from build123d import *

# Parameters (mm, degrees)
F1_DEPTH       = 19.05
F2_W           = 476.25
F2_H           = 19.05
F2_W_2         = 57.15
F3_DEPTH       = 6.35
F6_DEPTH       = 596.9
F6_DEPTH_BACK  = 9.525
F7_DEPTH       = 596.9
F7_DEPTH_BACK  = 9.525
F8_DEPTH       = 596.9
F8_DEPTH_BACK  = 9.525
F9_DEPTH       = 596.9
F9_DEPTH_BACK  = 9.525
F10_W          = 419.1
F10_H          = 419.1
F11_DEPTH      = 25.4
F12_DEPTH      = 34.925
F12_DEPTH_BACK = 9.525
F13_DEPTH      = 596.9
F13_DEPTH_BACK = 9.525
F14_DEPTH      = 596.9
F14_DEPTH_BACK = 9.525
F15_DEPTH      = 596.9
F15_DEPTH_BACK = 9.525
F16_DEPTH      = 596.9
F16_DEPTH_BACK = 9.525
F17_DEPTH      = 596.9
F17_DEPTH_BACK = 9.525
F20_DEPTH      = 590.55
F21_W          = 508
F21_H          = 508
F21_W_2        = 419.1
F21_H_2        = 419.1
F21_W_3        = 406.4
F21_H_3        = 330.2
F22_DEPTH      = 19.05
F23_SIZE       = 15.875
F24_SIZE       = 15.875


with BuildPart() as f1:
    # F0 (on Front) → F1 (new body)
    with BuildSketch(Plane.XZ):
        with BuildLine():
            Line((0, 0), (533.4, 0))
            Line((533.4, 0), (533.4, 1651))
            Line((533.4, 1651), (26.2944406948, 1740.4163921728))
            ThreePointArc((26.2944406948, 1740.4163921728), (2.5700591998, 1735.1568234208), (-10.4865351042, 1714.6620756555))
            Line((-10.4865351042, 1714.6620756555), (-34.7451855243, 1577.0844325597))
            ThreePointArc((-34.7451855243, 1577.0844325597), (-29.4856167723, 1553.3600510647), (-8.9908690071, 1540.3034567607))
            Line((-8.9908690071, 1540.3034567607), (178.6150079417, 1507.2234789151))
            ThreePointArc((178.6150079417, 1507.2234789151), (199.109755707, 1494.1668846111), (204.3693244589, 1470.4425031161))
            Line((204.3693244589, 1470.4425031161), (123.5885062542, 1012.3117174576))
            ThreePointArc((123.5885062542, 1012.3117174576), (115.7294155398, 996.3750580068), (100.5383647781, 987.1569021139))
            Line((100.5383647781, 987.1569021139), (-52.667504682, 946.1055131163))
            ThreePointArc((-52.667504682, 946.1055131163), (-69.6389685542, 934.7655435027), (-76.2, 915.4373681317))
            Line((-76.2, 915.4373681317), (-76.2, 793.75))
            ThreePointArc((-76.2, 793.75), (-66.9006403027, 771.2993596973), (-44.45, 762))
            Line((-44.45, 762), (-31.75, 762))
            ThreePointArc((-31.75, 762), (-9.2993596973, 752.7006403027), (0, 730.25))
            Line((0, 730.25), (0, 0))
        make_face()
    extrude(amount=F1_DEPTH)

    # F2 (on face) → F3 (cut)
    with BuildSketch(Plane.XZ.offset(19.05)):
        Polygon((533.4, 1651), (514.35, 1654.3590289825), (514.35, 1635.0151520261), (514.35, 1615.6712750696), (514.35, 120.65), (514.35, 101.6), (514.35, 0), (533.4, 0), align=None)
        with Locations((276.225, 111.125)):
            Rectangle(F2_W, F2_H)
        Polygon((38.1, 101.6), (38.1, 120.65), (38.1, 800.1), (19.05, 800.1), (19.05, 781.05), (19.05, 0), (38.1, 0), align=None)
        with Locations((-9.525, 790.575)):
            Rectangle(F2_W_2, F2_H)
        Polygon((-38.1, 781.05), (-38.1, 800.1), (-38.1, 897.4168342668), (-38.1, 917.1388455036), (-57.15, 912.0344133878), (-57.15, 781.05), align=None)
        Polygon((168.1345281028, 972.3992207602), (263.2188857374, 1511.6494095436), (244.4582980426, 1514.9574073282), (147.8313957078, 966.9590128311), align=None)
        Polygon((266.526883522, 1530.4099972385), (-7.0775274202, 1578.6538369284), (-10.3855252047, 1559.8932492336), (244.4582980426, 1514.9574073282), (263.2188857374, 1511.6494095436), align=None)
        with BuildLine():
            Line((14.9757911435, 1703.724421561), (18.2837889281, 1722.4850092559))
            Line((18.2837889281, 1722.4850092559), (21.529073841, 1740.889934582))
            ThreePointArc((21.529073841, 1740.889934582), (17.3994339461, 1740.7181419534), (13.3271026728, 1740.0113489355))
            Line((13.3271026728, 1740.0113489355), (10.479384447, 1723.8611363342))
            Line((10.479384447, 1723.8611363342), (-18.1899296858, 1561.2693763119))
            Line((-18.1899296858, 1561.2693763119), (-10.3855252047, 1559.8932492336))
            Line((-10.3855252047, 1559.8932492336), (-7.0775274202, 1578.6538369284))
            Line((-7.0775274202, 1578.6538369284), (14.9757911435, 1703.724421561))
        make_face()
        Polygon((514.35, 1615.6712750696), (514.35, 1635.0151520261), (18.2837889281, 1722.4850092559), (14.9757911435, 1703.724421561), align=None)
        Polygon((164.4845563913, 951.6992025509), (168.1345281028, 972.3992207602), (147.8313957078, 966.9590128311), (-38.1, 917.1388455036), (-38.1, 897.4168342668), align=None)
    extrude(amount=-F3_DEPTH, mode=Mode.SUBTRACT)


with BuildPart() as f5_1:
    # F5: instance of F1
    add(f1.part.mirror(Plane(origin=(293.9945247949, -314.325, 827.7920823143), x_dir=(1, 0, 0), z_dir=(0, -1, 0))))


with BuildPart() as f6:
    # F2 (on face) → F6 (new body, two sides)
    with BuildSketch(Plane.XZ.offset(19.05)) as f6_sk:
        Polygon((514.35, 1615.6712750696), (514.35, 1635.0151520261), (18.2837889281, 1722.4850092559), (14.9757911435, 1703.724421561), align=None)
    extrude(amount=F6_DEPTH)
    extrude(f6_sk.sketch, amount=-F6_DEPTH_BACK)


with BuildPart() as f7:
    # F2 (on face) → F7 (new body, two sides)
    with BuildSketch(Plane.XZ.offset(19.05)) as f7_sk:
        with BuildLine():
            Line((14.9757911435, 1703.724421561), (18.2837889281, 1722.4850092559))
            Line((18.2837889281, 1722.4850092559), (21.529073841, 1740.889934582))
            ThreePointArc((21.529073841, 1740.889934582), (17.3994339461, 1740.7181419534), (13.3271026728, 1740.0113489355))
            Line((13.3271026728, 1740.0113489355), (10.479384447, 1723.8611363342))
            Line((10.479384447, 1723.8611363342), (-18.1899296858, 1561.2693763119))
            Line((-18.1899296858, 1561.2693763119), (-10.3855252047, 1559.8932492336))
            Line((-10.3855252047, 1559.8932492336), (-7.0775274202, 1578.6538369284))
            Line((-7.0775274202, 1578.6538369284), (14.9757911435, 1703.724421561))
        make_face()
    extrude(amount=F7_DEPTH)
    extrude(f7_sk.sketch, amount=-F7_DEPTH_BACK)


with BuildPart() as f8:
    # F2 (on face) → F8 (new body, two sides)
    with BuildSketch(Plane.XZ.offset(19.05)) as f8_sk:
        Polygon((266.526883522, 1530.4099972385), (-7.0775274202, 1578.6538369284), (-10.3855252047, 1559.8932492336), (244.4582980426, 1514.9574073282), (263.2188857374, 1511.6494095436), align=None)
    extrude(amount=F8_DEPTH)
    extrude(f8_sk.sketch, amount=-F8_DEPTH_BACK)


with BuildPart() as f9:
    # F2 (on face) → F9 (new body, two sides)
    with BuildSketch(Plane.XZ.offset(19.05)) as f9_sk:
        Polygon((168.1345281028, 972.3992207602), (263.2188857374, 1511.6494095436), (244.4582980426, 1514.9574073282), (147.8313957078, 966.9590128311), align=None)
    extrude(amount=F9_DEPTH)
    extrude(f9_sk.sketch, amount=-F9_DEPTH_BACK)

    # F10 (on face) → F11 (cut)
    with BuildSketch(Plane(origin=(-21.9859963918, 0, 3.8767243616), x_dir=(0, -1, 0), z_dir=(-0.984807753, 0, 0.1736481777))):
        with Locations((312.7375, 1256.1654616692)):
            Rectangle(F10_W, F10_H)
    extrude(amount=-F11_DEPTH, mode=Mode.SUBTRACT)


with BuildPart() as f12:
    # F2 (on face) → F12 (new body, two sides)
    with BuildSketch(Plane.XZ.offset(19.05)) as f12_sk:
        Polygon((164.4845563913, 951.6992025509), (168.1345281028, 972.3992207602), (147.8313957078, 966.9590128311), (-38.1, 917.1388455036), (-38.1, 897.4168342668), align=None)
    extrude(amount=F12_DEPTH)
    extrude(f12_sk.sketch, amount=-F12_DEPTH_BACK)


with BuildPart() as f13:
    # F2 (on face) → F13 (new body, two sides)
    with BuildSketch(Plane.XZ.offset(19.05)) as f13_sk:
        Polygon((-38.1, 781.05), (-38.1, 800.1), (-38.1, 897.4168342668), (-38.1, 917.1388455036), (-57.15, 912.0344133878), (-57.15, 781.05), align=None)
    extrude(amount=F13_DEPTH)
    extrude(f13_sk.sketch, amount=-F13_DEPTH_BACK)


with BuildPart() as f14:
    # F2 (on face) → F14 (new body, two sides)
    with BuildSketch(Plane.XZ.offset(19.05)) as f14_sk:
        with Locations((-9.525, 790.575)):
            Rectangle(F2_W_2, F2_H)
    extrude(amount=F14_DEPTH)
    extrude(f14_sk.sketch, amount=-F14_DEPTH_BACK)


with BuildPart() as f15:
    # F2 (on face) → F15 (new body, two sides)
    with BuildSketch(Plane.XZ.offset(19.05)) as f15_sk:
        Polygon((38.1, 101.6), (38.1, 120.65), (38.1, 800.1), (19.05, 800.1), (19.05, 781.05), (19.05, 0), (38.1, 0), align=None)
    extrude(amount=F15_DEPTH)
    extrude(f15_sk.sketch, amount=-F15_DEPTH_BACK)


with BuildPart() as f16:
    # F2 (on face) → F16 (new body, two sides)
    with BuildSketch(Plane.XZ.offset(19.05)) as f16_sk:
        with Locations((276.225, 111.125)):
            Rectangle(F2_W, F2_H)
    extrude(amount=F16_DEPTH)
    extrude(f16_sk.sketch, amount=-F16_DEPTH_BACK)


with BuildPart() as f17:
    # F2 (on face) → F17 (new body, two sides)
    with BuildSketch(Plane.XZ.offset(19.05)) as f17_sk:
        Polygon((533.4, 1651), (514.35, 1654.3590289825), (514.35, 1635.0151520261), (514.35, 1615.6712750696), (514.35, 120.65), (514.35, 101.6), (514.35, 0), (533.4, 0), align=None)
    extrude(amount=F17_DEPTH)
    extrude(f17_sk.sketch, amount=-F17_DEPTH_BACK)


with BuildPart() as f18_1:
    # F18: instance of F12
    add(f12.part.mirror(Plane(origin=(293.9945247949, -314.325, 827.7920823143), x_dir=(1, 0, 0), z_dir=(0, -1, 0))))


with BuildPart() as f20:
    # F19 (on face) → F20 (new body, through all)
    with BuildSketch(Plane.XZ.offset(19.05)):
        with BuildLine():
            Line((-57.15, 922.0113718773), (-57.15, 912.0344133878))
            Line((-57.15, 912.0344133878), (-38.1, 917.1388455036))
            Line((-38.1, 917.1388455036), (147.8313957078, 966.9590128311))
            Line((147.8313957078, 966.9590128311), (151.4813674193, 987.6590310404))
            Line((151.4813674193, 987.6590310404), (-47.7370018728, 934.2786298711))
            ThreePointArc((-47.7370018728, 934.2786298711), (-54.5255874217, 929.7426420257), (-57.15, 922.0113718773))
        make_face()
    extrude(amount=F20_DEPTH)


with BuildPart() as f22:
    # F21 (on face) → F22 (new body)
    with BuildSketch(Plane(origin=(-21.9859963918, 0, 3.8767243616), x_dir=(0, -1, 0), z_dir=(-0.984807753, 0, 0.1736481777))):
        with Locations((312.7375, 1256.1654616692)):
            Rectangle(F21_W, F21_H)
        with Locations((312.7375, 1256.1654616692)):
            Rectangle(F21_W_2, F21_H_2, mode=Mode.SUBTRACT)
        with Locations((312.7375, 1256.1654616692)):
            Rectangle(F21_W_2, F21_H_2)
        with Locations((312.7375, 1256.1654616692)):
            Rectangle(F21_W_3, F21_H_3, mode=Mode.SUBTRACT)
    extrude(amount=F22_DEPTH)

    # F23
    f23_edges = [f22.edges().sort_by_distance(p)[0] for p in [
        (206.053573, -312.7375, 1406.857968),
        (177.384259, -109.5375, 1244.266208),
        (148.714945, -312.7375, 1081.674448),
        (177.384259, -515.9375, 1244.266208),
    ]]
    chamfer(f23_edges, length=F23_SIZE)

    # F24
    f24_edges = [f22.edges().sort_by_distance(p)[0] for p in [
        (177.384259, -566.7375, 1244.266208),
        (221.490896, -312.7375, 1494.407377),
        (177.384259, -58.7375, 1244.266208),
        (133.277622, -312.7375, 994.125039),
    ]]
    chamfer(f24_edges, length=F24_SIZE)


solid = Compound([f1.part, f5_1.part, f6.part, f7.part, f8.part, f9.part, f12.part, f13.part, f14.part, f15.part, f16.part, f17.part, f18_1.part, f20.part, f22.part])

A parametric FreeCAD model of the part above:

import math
import FreeCAD as App
import Part
import Sketcher

V = App.Vector
Q = App.Units.Quantity


def edges_at(feature, points):
    """Names of the edges that pass closest to the given points."""
    edges = feature.Shape.Edges
    near = lambda p: min(range(len(edges)), key=lambda i: edges[i].distToShape(Part.Vertex(*p))[0])
    return sorted({f"Edge{near(p) + 1}" for p in points})


def add_polygon(sketch, points):
    """Adds a closed chain of lines whose ends are joined by coincident constraints."""
    first, n = sketch.GeometryCount, len(points)
    for a, b in zip(points, points[1:] + points[:1]):
        sketch.addGeometry(Part.LineSegment(App.Vector(*a, 0), App.Vector(*b, 0)), False)
    for i in range(n):
        sketch.addConstraint(Sketcher.Constraint("Coincident", first + i, 2, first + (i + 1) % n, 1))

doc = App.newDocument("Part")
params = doc.addObject("Spreadsheet::Sheet", "Params")
for row, (alias, value) in enumerate([
    ("sketch1_width", "21 in"),
    ("sketch1_height", "65 in"),
    ("sketch1_radius", "1.25 in"),
    ("sketch1_width2", "0.5 in"),
    ("sketch1_length", "5.5 in"),
    ("pad1_length", "0.75 in"),
    ("sketch2_width", "3 in"),
    ("sketch2_height", "65 in"),
    ("sketch2_height2", "4 in"),
    ("sketch2_radius", "1.25 in"),
    ("sketch2_length", "5 in"),
    ("pocket1_length", "0.25 in"),
    ("sketch3_length", "0.75 in"),
    ("pad2_length", "23.5 in"),
    ("pad2_length2", "0.375 in"),
    ("sketch4_radius", "1.25 in"),
    ("sketch4_length", "5 in"),
    ("sketch4_length2", "0.75 in"),
    ("sketch4_length3", "0.312 in"),
    ("pad3_length", "23.5 in"),
    ("pad3_length2", "0.375 in"),
    ("sketch5_length", "0.75 in"),
    ("sketch5_length2", "10.938 in"),
    ("pad4_length", "23.5 in"),
    ("pad4_length2", "0.375 in"),
    ("sketch6_length", "0.75 in"),
    ("pad5_length", "23.5 in"),
    ("pad5_length2", "0.375 in"),
    ("sketch7_width", "16.5 in"),
    ("pocket2_length", "1 in"),
    ("pad6_length", "1.375 in"),
    ("pad6_length2", "0.375 in"),
    ("sketch9_width", "0.75 in"),
    ("pad7_length", "23.5 in"),
    ("pad7_length2", "0.375 in"),
    ("sketch10_width", "2.25 in"),
    ("sketch10_height", "0.75 in"),
    ("pad8_length", "23.5 in"),
    ("pad8_length2", "0.375 in"),
    ("sketch11_height", "31.5 in"),
    ("sketch11_width", "0.75 in"),
    ("pad9_length", "23.5 in"),
    ("pad9_length2", "0.375 in"),
    ("sketch12_width", "18.75 in"),
    ("sketch12_height", "0.75 in"),
    ("pad10_length", "23.5 in"),
    ("pad10_length2", "0.375 in"),
    ("sketch13_height", "65 in"),
    ("sketch13_width", "0.75 in"),
    ("pad11_length", "23.5 in"),
    ("pad11_length2", "0.375 in"),
    ("sketch14_radius", "0.5 in"),
    ("pad12_length", "23.25 in"),
    ("sketch15_width", "20 in"),
    ("sketch15_width2", "16 in"),
    ("sketch15_height", "13 in"),
    ("pad13_length", "0.75 in"),
    ("chamfer_size", "0.625 in"),
    ("chamfer2_size", "0.625 in"),
], start=1):
    params.set(f"A{row}", alias)
    params.set(f"B{row}", "=" + value)
    params.setAlias(f"B{row}", alias)

body = doc.addObject("PartDesign::Body", "Body")

# Sketch on XZ plane
sketch1 = body.newObject("Sketcher::SketchObject", "Sketch")
sketch1.AttachmentSupport = (doc.getObject("XZ_Plane"), [""])
sketch1.MapMode = "FlatFace"
sketch1.addGeometry([
    Part.LineSegment(V(0, 0, 0), V(533, 0, 0)),  # 0
    Part.LineSegment(V(533, 0, 0), V(533, 1651, 0)),  # 1
    Part.LineSegment(V(533, 1651, 0), V(26, 1740, 0)),  # 2
    Part.ArcOfCircle(Part.Circle(V(21, 1709, 0), V(0, 0, 1), 32), math.radians(80), math.radians(170)),  # 3
    Part.LineSegment(V(-10, 1715, 0), V(-35, 1577, 0)),  # 4
    Part.ArcOfCircle(Part.Circle(V(-3, 1572, 0), V(0, 0, 1), 32), math.radians(170), math.radians(260)),  # 5
    Part.LineSegment(V(-9, 1540, 0), V(179, 1507, 0)),  # 6
    Part.ArcOfCircle(Part.Circle(V(173, 1476, 0), V(0, 0, 1), 32), math.radians(-10), math.radians(80)),  # 7
    Part.LineSegment(V(204, 1470, 0), V(124, 1012, 0)),  # 8
    Part.ArcOfCircle(Part.Circle(V(92, 1018, 0), V(0, 0, 1), 32), math.radians(-75), math.radians(-10)),  # 9
    Part.LineSegment(V(101, 987, 0), V(-53, 946, 0)),  # 10
    Part.ArcOfCircle(Part.Circle(V(-44, 915, 0), V(0, 0, 1), 32), math.radians(105), math.radians(180)),  # 11
    Part.LineSegment(V(-76, 915, 0), V(-76, 794, 0)),  # 12
    Part.ArcOfCircle(Part.Circle(V(-44, 794, 0), V(0, 0, 1), 32), math.radians(180), math.radians(270)),  # 13
    Part.LineSegment(V(-44, 762, 0), V(-32, 762, 0)),  # 14
    Part.ArcOfCircle(Part.Circle(V(-32, 730, 0), V(0, 0, 1), 32), math.radians(0), math.radians(90)),  # 15
    Part.LineSegment(V(0, 730, 0), V(0, 0, 0)),  # 16
], False)
sketch1.addConstraint([
    Sketcher.Constraint("Coincident", 0, 2, 1, 1),
    Sketcher.Constraint("Coincident", 1, 2, 2, 1),
    Sketcher.Constraint("Tangent", 2, 2, 3, 1),
    Sketcher.Constraint("Tangent", 3, 2, 4, 1),
    Sketcher.Constraint("Tangent", 4, 2, 5, 1),
    Sketcher.Constraint("Tangent", 5, 2, 6, 1),
    Sketcher.Constraint("Tangent", 6, 2, 7, 2),
    Sketcher.Constraint("Tangent", 7, 1, 8, 1),
    Sketcher.Constraint("Tangent", 8, 2, 9, 2),
    Sketcher.Constraint("Tangent", 9, 1, 10, 1),
    Sketcher.Constraint("Tangent", 10, 2, 11, 1),
    Sketcher.Constraint("Tangent", 11, 2, 12, 1),
    Sketcher.Constraint("Tangent", 12, 2, 13, 1),
    Sketcher.Constraint("Tangent", 13, 2, 14, 1),
    Sketcher.Constraint("Tangent", 14, 2, 15, 2),
    Sketcher.Constraint("Tangent", 15, 1, 16, 1),
    Sketcher.Constraint("Coincident", 16, 2, 0, 1),
    Sketcher.Constraint("Horizontal", 0),
    Sketcher.Constraint("Vertical", 1),
    Sketcher.Constraint("Vertical", 12),
    Sketcher.Constraint("Horizontal", 14),
    Sketcher.Constraint("Vertical", 16),
    Sketcher.Constraint("Coincident", 16, 2, -1, 1),
    Sketcher.Constraint("Equal", 3, 5),
    Sketcher.Constraint("Equal", 5, 7),
    Sketcher.Constraint("Equal", 7, 9),
    Sketcher.Constraint("Equal", 9, 11),
    Sketcher.Constraint("Equal", 11, 13),
    Sketcher.Constraint("Equal", 13, 15),
    Sketcher.Constraint("Perpendicular", 2, 4),
    Sketcher.Constraint("Perpendicular", 4, 6),
    Sketcher.Constraint("Perpendicular", 6, 8),
    Sketcher.Constraint("DistanceX", 0, 1, 0, 2, Q("21 in")),
    Sketcher.Constraint("DistanceY", 1, 1, 1, 2, Q("65 in")),
    Sketcher.Constraint("Radius", 3, Q("1.25 in")),
    Sketcher.Constraint("DistanceX", 14, 1, 14, 2, Q("0.5 in")),
    Sketcher.Constraint("DistanceY", -1, 1, 13, 2, Q("30 in")),
    Sketcher.Constraint("Angle", 2, Q("170 deg")),
    Sketcher.Constraint("Angle", 10, Q("-165 deg")),
    Sketcher.Constraint("Distance", 4, Q("5.5 in")),
    Sketcher.Constraint("Distance", 6, Q("7.5 in")),
    Sketcher.Constraint("DistanceY", 12, 2, 12, 1, 121.687368),
    Sketcher.Constraint("DistanceX", 5, 3, 9, 3, 95.798399),
])
sketch1.setExpression("Constraints[32]", "Params.sketch1_width")
sketch1.setExpression("Constraints[33]", "Params.sketch1_height")
sketch1.setExpression("Constraints[34]", "Params.sketch1_radius")
sketch1.setExpression("Constraints[35]", "Params.sketch1_width2")
sketch1.setExpression("Constraints[39]", "Params.sketch1_length")
pad1 = body.newObject("PartDesign::Pad", "Pad")
pad1.Profile = sketch1
pad1.setExpression("Length", "Params.pad1_length")

# Sketch on XZ plane
sketch2 = body.newObject("Sketcher::SketchObject", "Sketch001")
sketch2.AttachmentSupport = (doc.getObject("XZ_Plane"), [""])
sketch2.MapMode = "FlatFace"
sketch2.AttachmentOffset = App.Placement(V(0, 0, 0.75 * 25.4), App.Rotation())
sketch2.addGeometry(Part.LineSegment(V(514.35, 0, 0), V(533.4, 0, 0)), False)  # 0
sketch2.addGeometry(Part.LineSegment(V(533.4, 0, 0), V(533.4, 1651, 0)), False)  # 1
sketch2.addGeometry(Part.LineSegment(V(533.4, 1651, 0), V(514.35, 1654.359029, 0)), False)  # 2
sketch2.addGeometry(Part.LineSegment(V(514.35, 1654.359029, 0), V(514.35, 1635.015152, 0)), False)  # 3
sketch2.addGeometry(Part.LineSegment(V(514.35, 1635.015152, 0), V(18.283789, 1722.485009, 0)), False)  # 4
sketch2.addGeometry(Part.LineSegment(V(18.283789, 1722.485009, 0), V(21.529074, 1740.889935, 0)), False)  # 5
sketch2.addGeometry(Part.ArcOfCircle(Part.Circle(V(20.781111, 1709.148746, 0), V(0, 0, 1), 31.75), math.radians(88.650108), math.radians(103.578178)), False)  # 6
sketch2.addGeometry(Part.LineSegment(V(13.327103, 1740.011349, 0), V(-18.18993, 1561.269376, 0)), False)  # 7
sketch2.addGeometry(Part.LineSegment(V(-18.18993, 1561.269376, 0), V(-10.385525, 1559.893249, 0)), False)  # 8
sketch2.addGeometry(Part.LineSegment(V(-10.385525, 1559.893249, 0), V(244.458298, 1514.957407, 0)), False)  # 9
sketch2.addGeometry(Part.LineSegment(V(244.458298, 1514.957407, 0), V(147.831396, 966.959013, 0)), False)  # 10
sketch2.addGeometry(Part.LineSegment(V(147.831396, 966.959013, 0), V(-57.15, 912.034413, 0)), False)  # 11
sketch2.addGeometry(Part.LineSegment(V(-57.15, 912.034413, 0), V(-57.15, 781.05, 0)), False)  # 12
sketch2.addGeometry(Part.LineSegment(V(-57.15, 781.05, 0), V(19.05, 781.05, 0)), False)  # 13
sketch2.addGeometry(Part.LineSegment(V(19.05, 781.05, 0), V(19.05, 0, 0)), False)  # 14
sketch2.addGeometry(Part.LineSegment(V(19.05, 0, 0), V(38.1, 0, 0)), False)  # 15
sketch2.addGeometry(Part.LineSegment(V(38.1, 0, 0), V(38.1, 101.6, 0)), False)  # 16
sketch2.addGeometry(Part.LineSegment(V(38.1, 101.6, 0), V(514.35, 101.6, 0)), False)  # 17
sketch2.addGeometry(Part.LineSegment(V(514.35, 101.6, 0), V(514.35, 0, 0)), False)  # 18
add_polygon(sketch2, [(168.134528, 972.399221), (263.218886, 1511.64941), (266.526884, 1530.409997), (-7.077527, 1578.653837), (14.975791, 1703.724422), (514.35, 1615.671275), (514.35, 120.65), (38.1, 120.65), (38.1, 800.1), (-38.1, 800.1), (-38.1, 897.416834), (164.484556, 951.699203)])  # lines 19-30
sketch2.addConstraint([
    Sketcher.Constraint("Coincident", 0, 2, 1, 1),
    Sketcher.Constraint("Coincident", 1, 2, 2, 1),
    Sketcher.Constraint("Coincident", 2, 2, 3, 1),
    Sketcher.Constraint("Coincident", 3, 2, 4, 1),
    Sketcher.Constraint("Coincident", 4, 2, 5, 1),
    Sketcher.Constraint("Coincident", 5, 2, 6, 1),
    Sketcher.Constraint("Coincident", 6, 2, 7, 1),
    Sketcher.Constraint("Coincident", 7, 2, 8, 1),
    Sketcher.Constraint("Coincident", 8, 2, 9, 1),
    Sketcher.Constraint("Coincident", 9, 2, 10, 1),
    Sketcher.Constraint("Coincident", 10, 2, 11, 1),
    Sketcher.Constraint("Coincident", 11, 2, 12, 1),
    Sketcher.Constraint("Coincident", 12, 2, 13, 1),
    Sketcher.Constraint("Coincident", 13, 2, 14, 1),
    Sketcher.Constraint("Coincident", 14, 2, 15, 1),
    Sketcher.Constraint("Coincident", 15, 2, 16, 1),
    Sketcher.Constraint("Coincident", 16, 2, 17, 1),
    Sketcher.Constraint("Coincident", 17, 2, 18, 1),
    Sketcher.Constraint("Coincident", 18, 2, 0, 1),
    Sketcher.Constraint("Horizontal", 0),
    Sketcher.Constraint("Vertical", 1),
    Sketcher.Constraint("Vertical", 3),
    Sketcher.Constraint("Vertical", 12),
    Sketcher.Constraint("Horizontal", 13),
    Sketcher.Constraint("Vertical", 14),
    Sketcher.Constraint("Horizontal", 15),
    Sketcher.Constraint("Vertical", 16),
    Sketcher.Constraint("Horizontal", 17),
    Sketcher.Constraint("Vertical", 18),
    Sketcher.Constraint("Vertical", 24),
    Sketcher.Constraint("Horizontal", 25),
    Sketcher.Constraint("Vertical", 26),
    Sketcher.Constraint("Horizontal", 27),
    Sketcher.Constraint("Vertical", 28),
    Sketcher.Constraint("PointOnObject", 0, 2, -1),
    Sketcher.Constraint("PointOnObject", 14, 2, -1),
    Sketcher.Constraint("Parallel", 2, 4),
    Sketcher.Constraint("Perpendicular", 4, 5),
    Sketcher.Constraint("Parallel", 5, 7),
    Sketcher.Constraint("Perpendicular", 7, 8),
    Sketcher.Constraint("Parallel", 8, 9),
    Sketcher.Constraint("Perpendicular", 9, 10),
    Sketcher.Constraint("Parallel", 10, 19),
    Sketcher.Constraint("Parallel", 19, 20),
    Sketcher.Constraint("Perpendicular", 20, 21),
    Sketcher.Constraint("Perpendicular", 21, 22),
    Sketcher.Constraint("Perpendicular", 22, 23),
    Sketcher.Constraint("Parallel", 11, 29),
    Sketcher.Constraint("Perpendicular", 23, 30),
    Sketcher.Constraint("Vertical", 3, 2, 17, 2),
    Sketcher.Constraint("Vertical", 18, 2, 23, 2),
    Sketcher.Constraint("Vertical", 16, 2, 25, 2),
    Sketcher.Constraint("Equal", 0, 15),
    Sketcher.Constraint("Equal", 13, 27),
    Sketcher.Constraint("DistanceX", 13, 1, 13, 2, Q("3 in")),
    Sketcher.Constraint("DistanceY", 1, 1, 1, 2, Q("65 in")),
    Sketcher.Constraint("DistanceY", 16, 1, 16, 2, Q("4 in")),
    Sketcher.Constraint("Radius", 6, Q("1.25 in")),
    Sketcher.Constraint("Distance", 22, Q("5 in")),
    Sketcher.Constraint("DistanceX", -1, 1, 0, 2, Q("21 in")),
    Sketcher.Constraint("Angle", 2, Q("170 deg")),
    Sketcher.Constraint("Angle", 11, Q("-165 deg")),
    Sketcher.Constraint("DistanceX", 0, 1, 0, 2, Q("0.75 in")),
    Sketcher.Constraint("DistanceX", 17, 1, 17, 2, Q("18.75 in")),
    Sketcher.Constraint("DistanceY", 14, 2, 14, 1, Q("30.75 in")),
    Sketcher.Constraint("DistanceY", 26, 1, 26, 2, Q("26.75 in")),
    Sketcher.Constraint("DistanceY", -1, 1, 26, 2, Q("31.5 in")),
    Sketcher.Constraint("Distance", 20, Q("0.75 in")),
    Sketcher.Constraint("Distance", 8, Q("0.312 in")),
    Sketcher.Constraint("Distance", 9, Q("10.188 in")),
    Sketcher.Constraint("Distance", 21, Q("10.938 in")),
    Sketcher.Constraint("DistanceX", -1, 1, 9, 2, 244.458298),
    Sketcher.Constraint("DistanceY", 8, 2, 6, 2, 180.1181),
    Sketcher.Constraint("DistanceX", 8, 2, 5, 2, 31.914599),
    Sketcher.Constraint("DistanceY", 11, 2, 10, 2, 54.924599),
    Sketcher.Constraint("Distance", 4, 503.718832),
    Sketcher.Constraint("Distance", 23, 507.077861),
    Sketcher.Constraint("Distance", 30, 21.019349),
    Sketcher.Constraint("DistanceY", 3, 2, 3, 1, 19.343877),
    Sketcher.Constraint("DistanceY", 12, 2, 12, 1, 130.984413),
    Sketcher.Constraint("DistanceY", 24, 2, 24, 1, 1495.021275),
    Sketcher.Constraint("DistanceY", 28, 1, 28, 2, 97.316834),
])
sketch2.setExpression("Constraints[66]", "Params.sketch2_width")
sketch2.setExpression("Constraints[67]", "Params.sketch2_height")
sketch2.setExpression("Constraints[68]", "Params.sketch2_height2")
sketch2.setExpression("Constraints[69]", "Params.sketch2_radius")
sketch2.setExpression("Constraints[70]", "Params.sketch2_length")
pocket1 = body.newObject("PartDesign::Pocket", "Pocket")
pocket1.Profile = sketch2
pocket1.setExpression("Length", "Params.pocket1_length")
body2 = doc.addObject("PartDesign::Body", "Body001")
doc.recompute()

mirroring = doc.addObject("Part::Mirroring", "Mirroring")
mirroring.Source = body
mirroring.Base = V(293.994525, -314.325, 827.792082)
mirroring.Normal = V(0, -1, 0)
body2.BaseFeature = mirroring
doc.recompute()
body3 = doc.addObject("PartDesign::Body", "Body002")

# Sketch on XZ plane
sketch3 = body3.newObject("Sketcher::SketchObject", "Sketch002")
sketch3.AttachmentSupport = (doc.getObject("XZ_Plane002"), [""])
sketch3.MapMode = "FlatFace"
sketch3.AttachmentOffset = App.Placement(V(0, 0, 0.75 * 25.4), App.Rotation())
add_polygon(sketch3, [(514, 1616), (514, 1635), (18, 1722), (15, 1704)])  # lines 0-3
sketch3.addConstraint([
    Sketcher.Constraint("Vertical", 0),
    Sketcher.Constraint("Perpendicular", 1, 2),
    Sketcher.Constraint("Perpendicular", 2, 3),
    Sketcher.Constraint("Angle", 1, Q("170 deg")),
    Sketcher.Constraint("Distance", 2, Q("0.75 in")),
    Sketcher.Constraint("DistanceX", -1, 1, 0, 2, Q("20.25 in")),
    Sketcher.Constraint("Distance", 1, 503.718832),
    Sketcher.Constraint("DistanceY", -1, 1, 1, 2, 1722.485009),
])
sketch3.setExpression("Constraints[8]", "Params.sketch3_length")
pad2 = body3.newObject("PartDesign::Pad", "Pad001")
pad2.Profile = sketch3
pad2.Type = "TwoLengths"
pad2.setExpression("Length", "Params.pad2_length")
pad2.setExpression("Length2", "Params.pad2_length2")
body4 = doc.addObject("PartDesign::Body", "Body003")

# Sketch on XZ plane
sketch4 = body4.newObject("Sketcher::SketchObject", "Sketch003")
sketch4.AttachmentSupport = (doc.getObject("XZ_Plane003"), [""])
sketch4.MapMode = "FlatFace"
sketch4.AttachmentOffset = App.Placement(V(0, 0, 0.75 * 25.4), App.Rotation())
sketch4.addGeometry([
    Part.LineSegment(V(15, 1704, 0), V(18, 1722, 0)),  # 0
    Part.LineSegment(V(18, 1722, 0), V(22, 1741, 0)),  # 1
    Part.ArcOfCircle(Part.Circle(V(21, 1709, 0), V(0, 0, 1), 32), math.radians(88.65), math.radians(103.58)),  # 2
    Part.LineSegment(V(13, 1740, 0), V(-18, 1561, 0)),  # 3
    Part.LineSegment(V(-18, 1561, 0), V(-10, 1560, 0)),  # 4
    Part.LineSegment(V(-10, 1560, 0), V(-7, 1579, 0)),  # 5
    Part.LineSegment(V(-7, 1579, 0), V(15, 1704, 0)),  # 6
], False)
sketch4.addConstraint([
    Sketcher.Constraint("Coincident", 0, 2, 1, 1),
    Sketcher.Constraint("Coincident", 1, 2, 2, 1),
    Sketcher.Constraint("Coincident", 2, 2, 3, 1),
    Sketcher.Constraint("Coincident", 3, 2, 4, 1),
    Sketcher.Constraint("Coincident", 4, 2, 5, 1),
    Sketcher.Constraint("Coincident", 5, 2, 6, 1),
    Sketcher.Constraint("Coincident", 6, 2, 0, 1),
    Sketcher.Constraint("Parallel", 0, 1),
    Sketcher.Constraint("Parallel", 1, 3),
    Sketcher.Constraint("Perpendicular", 3, 4),
    Sketcher.Constraint("Perpendicular", 4, 5),
    Sketcher.Constraint("Parallel", 5, 6),
    Sketcher.Constraint("Equal", 0, 5),
    Sketcher.Constraint("Radius", 2, Q("1.25 in")),
    Sketcher.Constraint("Distance", 6, Q("5 in")),
    Sketcher.Constraint("Angle", 0, Q("80 deg")),
    Sketcher.Constraint("Distance", 0, Q("0.75 in")),
    Sketcher.Constraint("Distance", 4, Q("0.312 in")),
    Sketcher.Constraint("DistanceY", 4, 2, 2, 2, 180.1181),
    Sketcher.Constraint("DistanceX", 4, 2, 1, 2, 31.914599),
    Sketcher.Constraint("DistanceX", -1, 1, 2, 3, 20.781111),
    Sketcher.Constraint("DistanceY", -1, 1, 0, 2, 1722.485009),
])
sketch4.setExpression("Constraints[13]", "Params.sketch4_radius")
sketch4.setExpression("Constraints[14]", "Params.sketch4_length")
sketch4.setExpression("Constraints[16]", "Params.sketch4_length2")
sketch4.setExpression("Constraints[17]", "Params.sketch4_length3")
pad3 = body4.newObject("PartDesign::Pad", "Pad002")
pad3.Profile = sketch4
pad3.Type = "TwoLengths"
pad3.setExpression("Length", "Params.pad3_length")
pad3.setExpression("Length2", "Params.pad3_length2")
body5 = doc.addObject("PartDesign::Body", "Body004")

# Sketch on XZ plane
sketch5 = body5.newObject("Sketcher::SketchObject", "Sketch004")
sketch5.AttachmentSupport = (doc.getObject("XZ_Plane004"), [""])
sketch5.MapMode = "FlatFace"
sketch5.AttachmentOffset = App.Placement(V(0, 0, 0.75 * 25.4), App.Rotation())
add_polygon(sketch5, [(267, 1530), (-7, 1579), (-10, 1560), (244, 1515), (263, 1512)])  # lines 0-4
sketch5.addConstraint([
    Sketcher.Constraint("Perpendicular", 0, 1),
    Sketcher.Constraint("Perpendicular", 1, 2),
    Sketcher.Constraint("Parallel", 2, 3),
    Sketcher.Constraint("Perpendicular", 3, 4),
    Sketcher.Constraint("Equal", 1, 3),
    Sketcher.Constraint("Angle", 0, Q("170 deg")),
    Sketcher.Constraint("Distance", 1, Q("0.75 in")),
    Sketcher.Constraint("Distance", 0, Q("10.938 in")),
    Sketcher.Constraint("DistanceX", -1, 1, 2, 2, 244.458298),
    Sketcher.Constraint("DistanceY", -1, 1, 1, 2, 1559.893249),
])
sketch5.setExpression("Constraints[11]", "Params.sketch5_length")
sketch5.setExpression("Constraints[12]", "Params.sketch5_length2")
pad4 = body5.newObject("PartDesign::Pad", "Pad003")
pad4.Profile = sketch5
pad4.Type = "TwoLengths"
pad4.setExpression("Length", "Params.pad4_length")
pad4.setExpression("Length2", "Params.pad4_length2")
body6 = doc.addObject("PartDesign::Body", "Body005")

# Sketch on XZ plane
sketch6 = body6.newObject("Sketcher::SketchObject", "Sketch005")
sketch6.AttachmentSupport = (doc.getObject("XZ_Plane005"), [""])
sketch6.MapMode = "FlatFace"
sketch6.AttachmentOffset = App.Placement(V(0, 0, 0.75 * 25.4), App.Rotation())
add_polygon(sketch6, [(168, 972), (263, 1512), (244, 1515), (148, 967)])  # lines 0-3
sketch6.addConstraint([
    Sketcher.Constraint("Perpendicular", 0, 1),
    Sketcher.Constraint("Perpendicular", 1, 2),
    Sketcher.Constraint("Angle", 0, Q("80 deg")),
    Sketcher.Constraint("Angle", 3, Q("15 deg")),
    Sketcher.Constraint("Distance", 1, Q("0.75 in")),
    Sketcher.Constraint("DistanceX", -1, 1, 1, 2, 244.458298),
    Sketcher.Constraint("DistanceY", -1, 1, 0, 2, 1511.64941),
    Sketcher.Constraint("DistanceX", -1, 1, 3, 2, 168.134528),
])
sketch6.setExpression("Constraints[8]", "Params.sketch6_length")
pad5 = body6.newObject("PartDesign::Pad", "Pad004")
pad5.Profile = sketch6
pad5.Type = "TwoLengths"
pad5.setExpression("Length", "Params.pad5_length")
pad5.setExpression("Length2", "Params.pad5_length2")

# Sketch on an angled plane
sketch7 = body6.newObject("Sketcher::SketchObject", "Sketch006")
sketch7.Placement = App.Placement(V(-21.985996, 0, 3.876724), App.Rotation(V(0, -1, 0), V(0.173648178, 0, 0.984807753), V(-0.984807753, 0, 0.173648178), "ZXY"))
add_polygon(sketch7, [(103, 1466), (103, 1047), (522, 1047), (522, 1466)])  # lines 0-3
sketch7.addConstraint([
    Sketcher.Constraint("Vertical", 0),
    Sketcher.Constraint("Horizontal", 1),
    Sketcher.Constraint("Vertical", 2),
    Sketcher.Constraint("Horizontal", 3),
    Sketcher.Constraint("Equal", 3, 0),
    Sketcher.Constraint("DistanceX", 1, 1, 1, 2, Q("16.5 in")),
    Sketcher.Constraint("DistanceX", -1, 1, 0, 2, Q("4.0625 in")),
    Sketcher.Constraint("DistanceY", -1, 1, 0, 2, 1046.615462),
])
sketch7.setExpression("Constraints[9]", "Params.sketch7_width")
pocket2 = body6.newObject("PartDesign::Pocket", "Pocket001")
pocket2.Profile = sketch7
pocket2.setExpression("Length", "Params.pocket2_length")
body7 = doc.addObject("PartDesign::Body", "Body006")

# Sketch on XZ plane
sketch8 = body7.newObject("Sketcher::SketchObject", "Sketch007")
sketch8.AttachmentSupport = (doc.getObject("XZ_Plane006"), [""])
sketch8.MapMode = "FlatFace"
sketch8.AttachmentOffset = App.Placement(V(0, 0, 0.75 * 25.4), App.Rotation())
add_polygon(sketch8, [(164, 952), (168, 972), (148, 967), (-38, 917), (-38, 897)])  # lines 0-4
sketch8.addConstraint([
    Sketcher.Constraint("Vertical", 3),
    Sketcher.Constraint("Parallel", 1, 2),
    Sketcher.Constraint("Parallel", 2, 4),
    Sketcher.Constraint("Equal", 0, 1),
    Sketcher.Constraint("Angle", 0, Q("80 deg")),
    Sketcher.Constraint("Angle", 1, Q("-165 deg")),
    Sketcher.Constraint("DistanceX", 2, 2, -1, 1, Q("1.5 in")),
    Sketcher.Constraint("DistanceY", 3, 2, 3, 1, 19.722011),
    Sketcher.Constraint("DistanceX", -1, 1, 0, 2, 168.134528),
    Sketcher.Constraint("DistanceY", -1, 1, 0, 2, 972.399221),
])
pad6 = body7.newObject("PartDesign::Pad", "Pad005")
pad6.Profile = sketch8
pad6.Type = "TwoLengths"
pad6.setExpression("Length", "Params.pad6_length")
pad6.setExpression("Length2", "Params.pad6_length2")
body8 = doc.addObject("PartDesign::Body", "Body007")

# Sketch on XZ plane
sketch9 = body8.newObject("Sketcher::SketchObject", "Sketch008")
sketch9.AttachmentSupport = (doc.getObject("XZ_Plane007"), [""])
sketch9.MapMode = "FlatFace"
sketch9.AttachmentOffset = App.Placement(V(0, 0, 0.75 * 25.4), App.Rotation())
add_polygon(sketch9, [(-38, 781), (-38, 917), (-57, 912), (-57, 781)])  # lines 0-3
sketch9.addConstraint([
    Sketcher.Constraint("Vertical", 0),
    Sketcher.Constraint("Vertical", 2),
    Sketcher.Constraint("Horizontal", 3),
    Sketcher.Constraint("Angle", 1, Q("-165 deg")),
    Sketcher.Constraint("DistanceX", 3, 1, 3, 2, Q("0.75 in")),
    Sketcher.Constraint("DistanceX", 0, 2, -1, 1, Q("1.5 in")),
    Sketcher.Constraint("DistanceY", -1, 1, 2, 2, Q("30.75 in")),
    Sketcher.Constraint("DistanceY", 0, 1, 0, 2, 136.088846),
])
sketch9.setExpression("Constraints[8]", "Params.sketch9_width")
pad7 = body8.newObject("PartDesign::Pad", "Pad006")
pad7.Profile = sketch9
pad7.Type = "TwoLengths"
pad7.setExpression("Length", "Params.pad7_length")
pad7.setExpression("Length2", "Params.pad7_length2")
body9 = doc.addObject("PartDesign::Body", "Body008")

# Sketch on XZ plane
sketch10 = body9.newObject("Sketcher::SketchObject", "Sketch009")
sketch10.AttachmentSupport = (doc.getObject("XZ_Plane008"), [""])
sketch10.MapMode = "FlatFace"
sketch10.AttachmentOffset = App.Placement(V(0, 0, 0.75 * 25.4), App.Rotation())
add_polygon(sketch10, [(-38, 800), (-38, 781), (19, 781), (19, 800)])  # lines 0-3
sketch10.addConstraint([
    Sketcher.Constraint("Vertical", 0),
    Sketcher.Constraint("Horizontal", 1),
    Sketcher.Constraint("Vertical", 2),
    Sketcher.Constraint("Horizontal", 3),
    Sketcher.Constraint("DistanceX", 1, 1, 1, 2, Q("2.25 in")),
    Sketcher.Constraint("DistanceY", 0, 2, 0, 1, Q("0.75 in")),
    Sketcher.Constraint("DistanceX", 0, 2, -1, 1, Q("1.5 in")),
    Sketcher.Constraint("DistanceY", -1, 1, 2, 2, Q("31.5 in")),
])
sketch10.setExpression("Constraints[8]", "Params.sketch10_width")
sketch10.setExpression("Constraints[9]", "Params.sketch10_height")
pad8 = body9.newObject("PartDesign::Pad", "Pad007")
pad8.Profile = sketch10
pad8.Type = "TwoLengths"
pad8.setExpression("Length", "Params.pad8_length")
pad8.setExpression("Length2", "Params.pad8_length2")
body10 = doc.addObject("PartDesign::Body", "Body009")

# Sketch on XZ plane
sketch11 = body10.newObject("Sketcher::SketchObject", "Sketch010")
sketch11.AttachmentSupport = (doc.getObject("XZ_Plane009"), [""])
sketch11.MapMode = "FlatFace"
sketch11.AttachmentOffset = App.Placement(V(0, 0, 0.75 * 25.4), App.Rotation())
add_polygon(sketch11, [(38, 800), (19, 800), (19, 0), (38, 0)])  # lines 0-3
sketch11.addConstraint([
    Sketcher.Constraint("Horizontal", 0),
    Sketcher.Constraint("Vertical", 1),
    Sketcher.Constraint("Horizontal", 2),
    Sketcher.Constraint("Vertical", 3),
    Sketcher.Constraint("PointOnObject", 1, 2, -1),
    Sketcher.Constraint("DistanceY", 1, 2, 1, 1, Q("31.5 in")),
    Sketcher.Constraint("DistanceX", 0, 2, 0, 1, Q("0.75 in")),
    Sketcher.Constraint("DistanceX", -1, 1, 2, 2, Q("1.5 in")),
])
sketch11.setExpression("Constraints[9]", "Params.sketch11_height")
sketch11.setExpression("Constraints[10]", "Params.sketch11_width")
pad9 = body10.newObject("PartDesign::Pad", "Pad008")
pad9.Profile = sketch11
pad9.Type = "TwoLengths"
pad9.setExpression("Length", "Params.pad9_length")
pad9.setExpression("Length2", "Params.pad9_length2")
body11 = doc.addObject("PartDesign::Body", "Body010")

# Sketch on XZ plane
sketch12 = body11.newObject("Sketcher::SketchObject", "Sketch011")
sketch12.AttachmentSupport = (doc.getObject("XZ_Plane010"), [""])
sketch12.MapMode = "FlatFace"
sketch12.AttachmentOffset = App.Placement(V(0, 0, 0.75 * 25.4), App.Rotation())
add_polygon(sketch12, [(38, 121), (38, 102), (514, 102), (514, 121)])  # lines 0-3
sketch12.addConstraint([
    Sketcher.Constraint("Vertical", 0),
    Sketcher.Constraint("Horizontal", 1),
    Sketcher.Constraint("Vertical", 2),
    Sketcher.Constraint("Horizontal", 3),
    Sketcher.Constraint("DistanceY", -1, 1, 0, 2, Q("4 in")),
    Sketcher.Constraint("DistanceX", 1, 1, 1, 2, Q("18.75 in")),
    Sketcher.Constraint("DistanceY", 0, 2, 0, 1, Q("0.75 in")),
    Sketcher.Constraint("DistanceX", -1, 1, 0, 2, Q("1.5 in")),
])
sketch12.setExpression("Constraints[9]", "Params.sketch12_width")
sketch12.setExpression("Constraints[10]", "Params.sketch12_height")
pad10 = body11.newObject("PartDesign::Pad", "Pad009")
pad10.Profile = sketch12
pad10.Type = "TwoLengths"
pad10.setExpression("Length", "Params.pad10_length")
pad10.setExpression("Length2", "Params.pad10_length2")
body12 = doc.addObject("PartDesign::Body", "Body011")

# Sketch on XZ plane
sketch13 = body12.newObject("Sketcher::SketchObject", "Sketch012")
sketch13.AttachmentSupport = (doc.getObject("XZ_Plane011"), [""])
sketch13.MapMode = "FlatFace"
sketch13.AttachmentOffset = App.Placement(V(0, 0, 0.75 * 25.4), App.Rotation())
add_polygon(sketch13, [(533, 1651), (514, 1654), (514, 0), (533, 0)])  # lines 0-3
sketch13.addConstraint([
    Sketcher.Constraint("Vertical", 1),
    Sketcher.Constraint("Horizontal", 2),
    Sketcher.Constraint("Vertical", 3),
    Sketcher.Constraint("PointOnObject", 1, 2, -1),
    Sketcher.Constraint("DistanceY", 3, 1, 3, 2, Q("65 in")),
    Sketcher.Constraint("DistanceX", -1, 1, 2, 2, Q("21 in")),
    Sketcher.Constraint("Angle", 0, Q("170 deg")),
    Sketcher.Constraint("DistanceX", 2, 1, 2, 2, Q("0.75 in")),
])
sketch13.setExpression("Constraints[8]", "Params.sketch13_height")
sketch13.setExpression("Constraints[11]", "Params.sketch13_width")
pad11 = body12.newObject("PartDesign::Pad", "Pad010")
pad11.Profile = sketch13
pad11.Type = "TwoLengths"
pad11.setExpression("Length", "Params.pad11_length")
pad11.setExpression("Length2", "Params.pad11_length2")
body13 = doc.addObject("PartDesign::Body", "Body012")
doc.recompute()

mirroring2 = doc.addObject("Part::Mirroring", "Mirroring001")
mirroring2.Source = body7
mirroring2.Base = V(293.994525, -314.325, 827.792082)
mirroring2.Normal = V(0, -1, 0)
body13.BaseFeature = mirroring2
doc.recompute()
body14 = doc.addObject("PartDesign::Body", "Body013")

# Sketch on XZ plane
sketch14 = body14.newObject("Sketcher::SketchObject", "Sketch013")
sketch14.AttachmentSupport = (doc.getObject("XZ_Plane013"), [""])
sketch14.MapMode = "FlatFace"
sketch14.AttachmentOffset = App.Placement(V(0, 0, 0.75 * 25.4), App.Rotation())
sketch14.addGeometry([
    Part.LineSegment(V(-57, 922, 0), V(-57, 912, 0)),  # 0
    Part.LineSegment(V(-57, 912, 0), V(148, 967, 0)),  # 1
    Part.LineSegment(V(148, 967, 0), V(151, 988, 0)),  # 2
    Part.LineSegment(V(151, 988, 0), V(-48, 934, 0)),  # 3
    Part.ArcOfCircle(Part.Circle(V(-44, 922, 0), V(0, 0, 1), 13), math.radians(105), math.radians(180)),  # 4
], False)
sketch14.addConstraint([
    Sketcher.Constraint("Coincident", 0, 2, 1, 1),
    Sketcher.Constraint("Coincident", 1, 2, 2, 1),
    Sketcher.Constraint("Coincident", 2, 2, 3, 1),
    Sketcher.Constraint("Tangent", 3, 2, 4, 1),
    Sketcher.Constraint("Tangent", 4, 2, 0, 1),
    Sketcher.Constraint("Vertical", 0),
    Sketcher.Constraint("Parallel", 1, 3),
    Sketcher.Constraint("Radius", 4, Q("0.5 in")),
    Sketcher.Constraint("Angle", 1, Q("15 deg")),
    Sketcher.Constraint("Angle", 2, Q("80 deg")),
    Sketcher.Constraint("DistanceX", 4, 3, -1, 1, Q("1.75 in")),
    Sketcher.Constraint("DistanceY", 0, 2, 0, 1, 9.976958),
    Sketcher.Constraint("DistanceY", 0, 2, 1, 2, 54.924599),
    Sketcher.Constraint("DistanceY", -1, 1, 4, 3, 922.011372),
])
sketch14.setExpression("Constraints[7]", "Params.sketch14_radius")
pad12 = body14.newObject("PartDesign::Pad", "Pad011")
pad12.Profile = sketch14
pad12.setExpression("Length", "Params.pad12_length")
body15 = doc.addObject("PartDesign::Body", "Body014")

# Sketch on an angled plane
sketch15 = body15.newObject("Sketcher::SketchObject", "Sketch014")
sketch15.Placement = App.Placement(V(-21.985996, 0, 3.876724), App.Rotation(V(0, -1, 0), V(0.173648178, 0, 0.984807753), V(-0.984807753, 0, 0.173648178), "ZXY"))
add_polygon(sketch15, [(59, 1510), (59, 1002), (567, 1002), (567, 1510)])  # lines 0-3
add_polygon(sketch15, [(516, 1091), (110, 1091), (110, 1421), (516, 1421)])  # lines 4-7
sketch15.addConstraint([
    Sketcher.Constraint("Vertical", 0),
    Sketcher.Constraint("Horizontal", 1),
    Sketcher.Constraint("Vertical", 2),
    Sketcher.Constraint("Horizontal", 3),
    Sketcher.Constraint("Horizontal", 4),
    Sketcher.Constraint("Vertical", 5),
    Sketcher.Constraint("Horizontal", 6),
    Sketcher.Constraint("Vertical", 7),
    Sketcher.Constraint("Equal", 3, 0),
    Sketcher.Constraint("DistanceX", 1, 1, 1, 2, Q("20 in")),
    Sketcher.Constraint("DistanceX", 4, 2, 4, 1, Q("16 in")),
    Sketcher.Constraint("DistanceY", 5, 1, 5, 2, Q("13 in")),
    Sketcher.Constraint("DistanceX", 0, 2, 4, 2, Q("2 in")),
    Sketcher.Constraint("DistanceY", 0, 2, 4, 2, Q("3.5 in")),
    Sketcher.Constraint("DistanceX", -1, 1, 0, 2, Q("2.3125 in")),
    Sketcher.Constraint("DistanceY", -1, 1, 0, 2, 1002.165462),
])
sketch15.setExpression("Constraints[17]", "Params.sketch15_width")
sketch15.setExpression("Constraints[18]", "Params.sketch15_width2")
sketch15.setExpression("Constraints[19]", "Params.sketch15_height")
pad13 = body15.newObject("PartDesign::Pad", "Pad012")
pad13.Profile = sketch15
pad13.setExpression("Length", "Params.pad13_length")
doc.recompute()

chamfer = body15.newObject("PartDesign::Chamfer", "Chamfer")
chamfer.Base = (pad13, edges_at(pad13, [
    (206.054, -312.738, 1406.858),
    (177.384, -109.537, 1244.266),
    (148.715, -312.738, 1081.674),
    (177.384, -515.938, 1244.266),
]))
chamfer.setExpression("Size", "Params.chamfer_size")
doc.recompute()

chamfer2 = body15.newObject("PartDesign::Chamfer", "Chamfer001")
chamfer2.Base = (chamfer, edges_at(chamfer, [
    (177.384, -566.737, 1244.266),
    (221.491, -312.738, 1494.407),
    (177.384, -58.737, 1244.266),
    (133.278, -312.738, 994.125),
]))
chamfer2.setExpression("Size", "Params.chamfer2_size")
mirroring.Visibility = False
mirroring2.Visibility = False

doc.recompute()
